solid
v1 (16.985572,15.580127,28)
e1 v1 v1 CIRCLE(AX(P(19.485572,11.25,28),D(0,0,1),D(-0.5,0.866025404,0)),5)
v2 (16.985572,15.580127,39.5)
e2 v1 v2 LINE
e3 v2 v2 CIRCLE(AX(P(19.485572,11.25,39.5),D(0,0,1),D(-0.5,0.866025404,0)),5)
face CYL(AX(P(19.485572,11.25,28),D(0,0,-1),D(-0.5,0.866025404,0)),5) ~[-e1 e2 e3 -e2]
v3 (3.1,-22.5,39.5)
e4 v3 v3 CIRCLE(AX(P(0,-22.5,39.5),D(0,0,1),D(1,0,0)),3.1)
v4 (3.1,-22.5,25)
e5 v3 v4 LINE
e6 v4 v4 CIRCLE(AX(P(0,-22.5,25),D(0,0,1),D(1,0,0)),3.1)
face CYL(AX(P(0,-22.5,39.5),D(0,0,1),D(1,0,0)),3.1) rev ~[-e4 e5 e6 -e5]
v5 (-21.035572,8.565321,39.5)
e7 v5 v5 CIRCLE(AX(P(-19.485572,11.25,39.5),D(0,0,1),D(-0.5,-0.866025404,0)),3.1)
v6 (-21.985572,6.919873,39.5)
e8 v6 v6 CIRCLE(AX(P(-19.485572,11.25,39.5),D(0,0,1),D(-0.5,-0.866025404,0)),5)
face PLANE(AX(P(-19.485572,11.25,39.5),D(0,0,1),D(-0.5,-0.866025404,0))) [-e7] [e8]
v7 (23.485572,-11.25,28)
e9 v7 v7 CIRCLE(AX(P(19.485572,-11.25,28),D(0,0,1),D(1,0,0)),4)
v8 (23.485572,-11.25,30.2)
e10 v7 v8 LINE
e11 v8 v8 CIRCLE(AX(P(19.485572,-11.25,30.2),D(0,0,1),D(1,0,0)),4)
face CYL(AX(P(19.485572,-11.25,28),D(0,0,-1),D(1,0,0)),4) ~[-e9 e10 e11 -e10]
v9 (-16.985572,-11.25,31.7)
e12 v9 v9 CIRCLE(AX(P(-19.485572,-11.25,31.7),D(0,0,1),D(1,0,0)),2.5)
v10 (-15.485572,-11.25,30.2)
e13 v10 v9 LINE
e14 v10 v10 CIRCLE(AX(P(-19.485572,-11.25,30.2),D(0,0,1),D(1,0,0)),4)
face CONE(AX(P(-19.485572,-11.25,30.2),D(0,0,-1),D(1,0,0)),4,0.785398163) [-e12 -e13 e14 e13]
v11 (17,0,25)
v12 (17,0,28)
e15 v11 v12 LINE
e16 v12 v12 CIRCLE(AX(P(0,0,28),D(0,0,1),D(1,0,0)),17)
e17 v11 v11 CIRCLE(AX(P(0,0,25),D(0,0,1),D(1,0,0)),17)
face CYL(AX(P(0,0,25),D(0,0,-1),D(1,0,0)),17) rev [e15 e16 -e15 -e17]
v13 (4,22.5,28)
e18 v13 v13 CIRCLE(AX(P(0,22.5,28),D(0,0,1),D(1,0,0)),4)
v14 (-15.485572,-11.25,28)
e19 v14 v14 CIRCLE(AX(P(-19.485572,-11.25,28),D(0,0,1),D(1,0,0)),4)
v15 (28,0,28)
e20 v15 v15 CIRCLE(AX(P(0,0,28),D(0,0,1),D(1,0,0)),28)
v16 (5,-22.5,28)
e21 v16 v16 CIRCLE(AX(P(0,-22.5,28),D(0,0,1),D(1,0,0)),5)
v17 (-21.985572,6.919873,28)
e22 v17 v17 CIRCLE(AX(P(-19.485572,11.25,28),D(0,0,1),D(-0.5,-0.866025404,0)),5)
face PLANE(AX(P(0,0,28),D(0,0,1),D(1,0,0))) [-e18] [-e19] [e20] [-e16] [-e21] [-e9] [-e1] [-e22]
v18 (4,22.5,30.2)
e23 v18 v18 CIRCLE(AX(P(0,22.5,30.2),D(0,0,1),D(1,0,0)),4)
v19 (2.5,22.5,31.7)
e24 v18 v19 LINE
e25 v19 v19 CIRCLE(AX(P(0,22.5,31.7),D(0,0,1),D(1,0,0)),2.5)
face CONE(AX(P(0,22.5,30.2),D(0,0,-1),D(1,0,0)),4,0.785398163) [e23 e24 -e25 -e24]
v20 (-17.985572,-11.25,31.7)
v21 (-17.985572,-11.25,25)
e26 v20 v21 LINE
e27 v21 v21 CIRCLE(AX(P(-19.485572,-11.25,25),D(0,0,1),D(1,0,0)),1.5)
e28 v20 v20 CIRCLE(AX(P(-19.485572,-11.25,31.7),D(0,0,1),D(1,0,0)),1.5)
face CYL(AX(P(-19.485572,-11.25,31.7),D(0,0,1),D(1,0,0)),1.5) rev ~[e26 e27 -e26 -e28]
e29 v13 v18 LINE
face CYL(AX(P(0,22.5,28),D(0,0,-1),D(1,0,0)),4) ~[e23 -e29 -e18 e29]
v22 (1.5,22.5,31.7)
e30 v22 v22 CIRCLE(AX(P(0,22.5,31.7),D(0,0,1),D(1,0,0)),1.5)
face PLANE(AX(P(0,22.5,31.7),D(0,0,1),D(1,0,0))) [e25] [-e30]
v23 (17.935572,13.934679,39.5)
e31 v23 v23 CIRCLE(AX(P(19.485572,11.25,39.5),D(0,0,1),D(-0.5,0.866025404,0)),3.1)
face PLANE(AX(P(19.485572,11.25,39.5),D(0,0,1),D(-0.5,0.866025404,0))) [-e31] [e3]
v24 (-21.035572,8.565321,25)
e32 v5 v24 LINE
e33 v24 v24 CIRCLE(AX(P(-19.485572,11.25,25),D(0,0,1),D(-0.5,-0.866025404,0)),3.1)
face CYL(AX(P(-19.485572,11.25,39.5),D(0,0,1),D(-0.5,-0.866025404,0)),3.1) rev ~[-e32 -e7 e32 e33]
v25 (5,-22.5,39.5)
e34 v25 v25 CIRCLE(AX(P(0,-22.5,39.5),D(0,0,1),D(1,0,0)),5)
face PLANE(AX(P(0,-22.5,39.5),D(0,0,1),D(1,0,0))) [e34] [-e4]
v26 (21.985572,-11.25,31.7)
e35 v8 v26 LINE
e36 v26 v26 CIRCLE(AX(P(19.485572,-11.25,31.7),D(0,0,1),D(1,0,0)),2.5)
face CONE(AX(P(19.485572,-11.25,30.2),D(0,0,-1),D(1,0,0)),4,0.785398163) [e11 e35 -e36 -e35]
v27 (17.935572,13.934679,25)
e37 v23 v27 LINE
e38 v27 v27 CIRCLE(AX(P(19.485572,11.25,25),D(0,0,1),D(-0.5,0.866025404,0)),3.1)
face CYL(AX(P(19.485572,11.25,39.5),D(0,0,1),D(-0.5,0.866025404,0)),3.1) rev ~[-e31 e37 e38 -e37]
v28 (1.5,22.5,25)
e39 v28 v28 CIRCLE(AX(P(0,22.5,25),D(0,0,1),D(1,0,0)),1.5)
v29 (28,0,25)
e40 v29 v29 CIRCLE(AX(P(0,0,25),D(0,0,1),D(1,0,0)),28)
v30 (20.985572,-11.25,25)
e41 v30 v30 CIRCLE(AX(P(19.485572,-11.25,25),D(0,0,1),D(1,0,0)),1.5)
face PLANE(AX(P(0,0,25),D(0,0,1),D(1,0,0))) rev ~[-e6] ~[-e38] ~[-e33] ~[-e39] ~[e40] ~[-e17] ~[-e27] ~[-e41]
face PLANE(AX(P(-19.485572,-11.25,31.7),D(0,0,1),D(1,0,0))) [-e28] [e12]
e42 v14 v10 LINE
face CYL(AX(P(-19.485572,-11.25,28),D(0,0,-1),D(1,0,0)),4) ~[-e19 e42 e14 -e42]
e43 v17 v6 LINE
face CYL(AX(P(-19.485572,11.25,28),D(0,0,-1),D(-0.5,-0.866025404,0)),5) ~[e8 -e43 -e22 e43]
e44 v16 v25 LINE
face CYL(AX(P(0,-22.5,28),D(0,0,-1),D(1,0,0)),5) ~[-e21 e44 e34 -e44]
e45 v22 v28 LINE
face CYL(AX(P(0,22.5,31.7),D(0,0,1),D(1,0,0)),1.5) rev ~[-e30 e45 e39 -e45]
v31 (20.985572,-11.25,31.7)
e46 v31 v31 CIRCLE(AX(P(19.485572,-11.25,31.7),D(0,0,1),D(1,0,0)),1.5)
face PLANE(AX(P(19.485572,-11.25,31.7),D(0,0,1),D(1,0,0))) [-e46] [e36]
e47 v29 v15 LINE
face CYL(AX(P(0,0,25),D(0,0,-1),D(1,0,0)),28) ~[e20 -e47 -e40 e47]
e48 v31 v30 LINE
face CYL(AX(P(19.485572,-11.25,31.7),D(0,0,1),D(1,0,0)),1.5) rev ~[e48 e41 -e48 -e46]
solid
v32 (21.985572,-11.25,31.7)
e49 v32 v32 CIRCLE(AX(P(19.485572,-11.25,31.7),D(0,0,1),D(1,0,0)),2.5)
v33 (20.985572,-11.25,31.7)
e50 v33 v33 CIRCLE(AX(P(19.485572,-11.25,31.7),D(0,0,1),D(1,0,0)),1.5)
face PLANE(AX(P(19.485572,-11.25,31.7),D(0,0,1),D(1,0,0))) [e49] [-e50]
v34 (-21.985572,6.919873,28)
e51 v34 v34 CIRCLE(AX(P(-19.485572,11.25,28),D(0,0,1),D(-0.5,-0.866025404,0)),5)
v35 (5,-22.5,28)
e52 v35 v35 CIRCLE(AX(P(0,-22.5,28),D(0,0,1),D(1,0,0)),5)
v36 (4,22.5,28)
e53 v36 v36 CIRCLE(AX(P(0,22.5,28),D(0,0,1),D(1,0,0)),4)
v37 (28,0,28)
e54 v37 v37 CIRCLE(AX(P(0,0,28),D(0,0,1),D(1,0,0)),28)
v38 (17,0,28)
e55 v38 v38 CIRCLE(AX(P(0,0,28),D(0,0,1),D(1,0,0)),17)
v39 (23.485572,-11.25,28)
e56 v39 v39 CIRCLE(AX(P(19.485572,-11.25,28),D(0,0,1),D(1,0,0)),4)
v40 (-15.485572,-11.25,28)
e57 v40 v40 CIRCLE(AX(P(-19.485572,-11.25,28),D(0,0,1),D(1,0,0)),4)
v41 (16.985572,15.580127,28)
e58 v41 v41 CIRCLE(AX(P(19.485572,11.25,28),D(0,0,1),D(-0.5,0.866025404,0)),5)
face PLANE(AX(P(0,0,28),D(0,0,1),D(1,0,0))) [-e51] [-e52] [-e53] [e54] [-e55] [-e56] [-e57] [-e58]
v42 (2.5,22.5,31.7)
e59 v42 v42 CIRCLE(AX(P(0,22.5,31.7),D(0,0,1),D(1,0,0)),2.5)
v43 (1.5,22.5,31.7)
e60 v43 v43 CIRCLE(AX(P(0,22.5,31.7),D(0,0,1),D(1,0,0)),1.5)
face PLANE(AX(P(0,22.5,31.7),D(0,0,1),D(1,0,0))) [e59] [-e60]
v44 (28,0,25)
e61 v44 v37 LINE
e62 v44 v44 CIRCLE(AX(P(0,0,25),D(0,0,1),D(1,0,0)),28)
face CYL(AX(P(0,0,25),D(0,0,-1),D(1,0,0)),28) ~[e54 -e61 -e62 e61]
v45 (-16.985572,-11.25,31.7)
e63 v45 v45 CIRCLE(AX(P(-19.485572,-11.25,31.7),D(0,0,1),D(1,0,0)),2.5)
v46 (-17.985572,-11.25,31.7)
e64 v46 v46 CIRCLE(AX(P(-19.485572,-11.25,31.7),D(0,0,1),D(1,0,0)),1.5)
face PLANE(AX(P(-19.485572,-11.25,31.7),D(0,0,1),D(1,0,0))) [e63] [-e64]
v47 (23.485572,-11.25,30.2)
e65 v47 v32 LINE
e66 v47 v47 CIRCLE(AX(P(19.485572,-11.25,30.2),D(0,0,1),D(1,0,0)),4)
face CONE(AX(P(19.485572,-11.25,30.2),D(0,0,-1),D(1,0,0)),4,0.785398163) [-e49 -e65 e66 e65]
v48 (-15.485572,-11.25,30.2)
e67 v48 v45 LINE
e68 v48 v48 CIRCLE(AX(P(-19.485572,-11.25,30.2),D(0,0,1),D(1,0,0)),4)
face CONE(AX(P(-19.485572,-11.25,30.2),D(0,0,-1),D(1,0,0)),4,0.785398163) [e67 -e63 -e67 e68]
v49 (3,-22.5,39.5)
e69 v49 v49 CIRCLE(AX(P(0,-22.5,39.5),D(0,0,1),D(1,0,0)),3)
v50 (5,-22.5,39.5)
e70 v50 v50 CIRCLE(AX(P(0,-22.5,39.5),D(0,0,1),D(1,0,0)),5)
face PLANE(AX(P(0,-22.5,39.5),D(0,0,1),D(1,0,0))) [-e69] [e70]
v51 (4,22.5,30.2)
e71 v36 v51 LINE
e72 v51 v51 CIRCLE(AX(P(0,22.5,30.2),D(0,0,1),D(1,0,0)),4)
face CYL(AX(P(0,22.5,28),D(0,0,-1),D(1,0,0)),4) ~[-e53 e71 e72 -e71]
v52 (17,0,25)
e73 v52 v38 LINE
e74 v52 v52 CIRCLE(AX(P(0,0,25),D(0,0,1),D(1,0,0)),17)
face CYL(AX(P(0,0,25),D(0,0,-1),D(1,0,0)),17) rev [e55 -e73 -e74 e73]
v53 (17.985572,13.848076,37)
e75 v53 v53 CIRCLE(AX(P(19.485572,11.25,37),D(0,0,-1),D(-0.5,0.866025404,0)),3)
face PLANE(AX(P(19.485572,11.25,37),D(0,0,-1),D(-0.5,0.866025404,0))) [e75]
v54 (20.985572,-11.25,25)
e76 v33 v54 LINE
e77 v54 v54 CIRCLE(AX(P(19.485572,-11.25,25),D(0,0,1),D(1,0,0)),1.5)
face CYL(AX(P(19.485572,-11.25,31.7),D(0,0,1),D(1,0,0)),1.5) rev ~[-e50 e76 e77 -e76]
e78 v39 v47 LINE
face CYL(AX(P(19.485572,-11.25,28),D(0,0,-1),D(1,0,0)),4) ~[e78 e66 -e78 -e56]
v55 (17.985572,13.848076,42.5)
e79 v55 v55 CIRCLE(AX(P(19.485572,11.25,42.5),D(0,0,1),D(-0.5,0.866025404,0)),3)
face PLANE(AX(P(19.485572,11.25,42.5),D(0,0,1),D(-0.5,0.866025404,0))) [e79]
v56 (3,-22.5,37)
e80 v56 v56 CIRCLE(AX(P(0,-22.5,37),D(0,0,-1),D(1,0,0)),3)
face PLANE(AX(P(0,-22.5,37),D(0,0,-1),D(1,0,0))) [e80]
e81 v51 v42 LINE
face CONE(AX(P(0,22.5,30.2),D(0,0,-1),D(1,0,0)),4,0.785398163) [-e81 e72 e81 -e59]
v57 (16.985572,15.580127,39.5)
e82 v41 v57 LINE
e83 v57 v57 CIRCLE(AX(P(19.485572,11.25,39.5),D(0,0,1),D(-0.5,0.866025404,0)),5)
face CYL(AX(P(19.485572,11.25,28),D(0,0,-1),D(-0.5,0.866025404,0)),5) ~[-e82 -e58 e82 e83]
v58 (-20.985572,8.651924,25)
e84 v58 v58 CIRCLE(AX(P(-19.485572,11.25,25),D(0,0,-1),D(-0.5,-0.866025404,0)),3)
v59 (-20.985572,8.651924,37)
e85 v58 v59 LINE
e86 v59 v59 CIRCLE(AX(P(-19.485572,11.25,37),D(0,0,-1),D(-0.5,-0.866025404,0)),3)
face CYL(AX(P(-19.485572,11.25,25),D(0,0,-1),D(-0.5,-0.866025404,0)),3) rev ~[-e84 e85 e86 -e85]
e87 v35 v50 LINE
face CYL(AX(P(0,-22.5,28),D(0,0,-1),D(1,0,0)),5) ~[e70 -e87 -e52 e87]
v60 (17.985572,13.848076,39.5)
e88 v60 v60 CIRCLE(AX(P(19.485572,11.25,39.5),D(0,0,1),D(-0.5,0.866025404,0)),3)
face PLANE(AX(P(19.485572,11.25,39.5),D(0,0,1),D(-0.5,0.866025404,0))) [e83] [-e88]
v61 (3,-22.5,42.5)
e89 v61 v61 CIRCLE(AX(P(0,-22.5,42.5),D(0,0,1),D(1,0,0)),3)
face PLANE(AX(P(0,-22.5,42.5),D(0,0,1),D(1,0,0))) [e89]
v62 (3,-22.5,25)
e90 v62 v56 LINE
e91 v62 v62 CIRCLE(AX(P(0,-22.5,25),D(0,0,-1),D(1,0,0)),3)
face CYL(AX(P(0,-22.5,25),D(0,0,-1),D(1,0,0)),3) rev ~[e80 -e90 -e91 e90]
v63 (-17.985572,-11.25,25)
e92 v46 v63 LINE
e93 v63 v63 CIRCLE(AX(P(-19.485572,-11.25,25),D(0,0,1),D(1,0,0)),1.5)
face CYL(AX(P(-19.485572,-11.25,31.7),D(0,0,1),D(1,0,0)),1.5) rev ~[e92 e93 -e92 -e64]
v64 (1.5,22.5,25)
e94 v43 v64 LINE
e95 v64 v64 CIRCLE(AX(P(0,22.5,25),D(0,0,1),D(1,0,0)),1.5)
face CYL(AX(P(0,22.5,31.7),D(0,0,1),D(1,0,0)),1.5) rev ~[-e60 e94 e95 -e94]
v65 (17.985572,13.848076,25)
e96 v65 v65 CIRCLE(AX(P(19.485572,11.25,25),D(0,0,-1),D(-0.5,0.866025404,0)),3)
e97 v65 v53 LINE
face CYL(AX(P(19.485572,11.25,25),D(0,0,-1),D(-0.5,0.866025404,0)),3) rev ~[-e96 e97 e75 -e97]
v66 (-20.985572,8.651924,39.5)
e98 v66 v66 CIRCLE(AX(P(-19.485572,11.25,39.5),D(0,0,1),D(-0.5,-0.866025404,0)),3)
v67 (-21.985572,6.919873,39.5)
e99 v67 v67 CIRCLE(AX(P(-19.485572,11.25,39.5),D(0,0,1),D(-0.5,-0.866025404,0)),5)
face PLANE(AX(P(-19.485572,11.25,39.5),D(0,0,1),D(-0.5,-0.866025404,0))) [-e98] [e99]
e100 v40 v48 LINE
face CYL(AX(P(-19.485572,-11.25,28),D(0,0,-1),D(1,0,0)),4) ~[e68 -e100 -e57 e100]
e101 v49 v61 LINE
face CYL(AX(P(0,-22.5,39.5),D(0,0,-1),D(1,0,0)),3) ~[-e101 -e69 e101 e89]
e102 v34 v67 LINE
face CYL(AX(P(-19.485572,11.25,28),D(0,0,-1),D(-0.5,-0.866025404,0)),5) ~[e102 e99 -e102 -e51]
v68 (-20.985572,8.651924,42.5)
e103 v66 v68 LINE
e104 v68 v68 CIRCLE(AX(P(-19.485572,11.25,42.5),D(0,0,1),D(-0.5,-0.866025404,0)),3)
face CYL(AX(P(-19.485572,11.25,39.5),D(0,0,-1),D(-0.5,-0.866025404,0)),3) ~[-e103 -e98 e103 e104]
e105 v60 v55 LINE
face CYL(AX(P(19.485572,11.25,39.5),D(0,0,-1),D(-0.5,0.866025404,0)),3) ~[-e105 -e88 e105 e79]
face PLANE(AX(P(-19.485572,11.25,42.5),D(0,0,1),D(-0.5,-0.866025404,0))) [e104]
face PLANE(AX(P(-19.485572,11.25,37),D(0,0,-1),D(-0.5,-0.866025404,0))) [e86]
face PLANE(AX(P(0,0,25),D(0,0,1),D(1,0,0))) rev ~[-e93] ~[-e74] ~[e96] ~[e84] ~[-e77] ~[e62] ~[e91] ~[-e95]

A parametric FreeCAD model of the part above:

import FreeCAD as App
import Part
import Sketcher


def edges_at(feature, points):
    """Names of the edges that pass closest to the given points."""
    edges = feature.Shape.Edges
    near = lambda p: min(range(len(edges)), key=lambda i: edges[i].distToShape(Part.Vertex(*p))[0])
    return sorted({f"Edge{near(p) + 1}" for p in points})

doc = App.newDocument("Part")
body = doc.addObject("PartDesign::Body", "Body")

sketch1 = body.newObject("Sketcher::SketchObject", "Sketch")
sketch1.AttachmentSupport = (doc.getObject("XY_Plane"), [""])
sketch1.MapMode = "FlatFace"
sketch1.AttachmentOffset = App.Placement(App.Vector(0, 0, 25), App.Rotation())
sketch1.addGeometry(Part.Circle(App.Vector(0, 0, 0), App.Vector(0, 0, 1), 28), False)
sketch1.addGeometry(Part.Circle(App.Vector(0, 0, 0), App.Vector(0, 0, 1), 17), False)
sketch1.addConstraint(Sketcher.Constraint("Coincident", 0, 3, -1, 1))
sketch1.addConstraint(Sketcher.Constraint("Coincident", 1, 3, -1, 1))
sketch1.addConstraint(Sketcher.Constraint("Diameter", 0, 56.0))
sketch1.addConstraint(Sketcher.Constraint("Diameter", 1, 34.0))
pad1 = body.newObject("PartDesign::Pad", "Pad")
pad1.Profile = sketch1
pad1.Length = 3

sketch2 = body.newObject("Sketcher::SketchObject", "Sketch001")
sketch2.AttachmentSupport = (doc.getObject("XY_Plane"), [""])
sketch2.MapMode = "FlatFace"
sketch2.AttachmentOffset = App.Placement(App.Vector(0, 0, 28), App.Rotation())
sketch2.addGeometry(Part.Circle(App.Vector(0, 22.5, 0), App.Vector(0, 0, 1), 4), False)
sketch2.addGeometry(Part.Circle(App.Vector(-19.5, -11.2, 0), App.Vector(0, 0, 1), 4), False)
sketch2.addGeometry(Part.Circle(App.Vector(19.5, -11.2, 0), App.Vector(0, 0, 1), 4), False)
sketch2.addConstraint(Sketcher.Constraint("Equal", 0, 1))
sketch2.addConstraint(Sketcher.Constraint("Equal", 1, 2))
sketch2.addConstraint(Sketcher.Constraint("Symmetric", 1, 3, 2, 3, -2))
sketch2.addConstraint(Sketcher.Constraint("PointOnObject", 0, 3, -2))
sketch2.addConstraint(Sketcher.Constraint("Diameter", 0, 8.0))
sketch2.addConstraint(Sketcher.Constraint("DistanceY", -1, 1, 0, 3, 22.5))
sketch2.addConstraint(Sketcher.Constraint("DistanceY", 1, 3, -1, 1, 11.25))
sketch2.addConstraint(Sketcher.Constraint("DistanceX", 1, 3, -1, 1, 19.485572))
pad2 = body.newObject("PartDesign::Pad", "Pad001")
pad2.Profile = sketch2
pad2.Length = 3.7

sketch3 = body.newObject("Sketcher::SketchObject", "Sketch002")
sketch3.AttachmentSupport = (doc.getObject("XY_Plane"), [""])
sketch3.MapMode = "FlatFace"
sketch3.AttachmentOffset = App.Placement(App.Vector(0, 0, 31.7), App.Rotation())
sketch3.addGeometry(Part.Circle(App.Vector(0, 22.5, 0), App.Vector(0, 0, 1), 1.5), False)
sketch3.addGeometry(Part.Circle(App.Vector(-19.5, -11.2, 0), App.Vector(0, 0, 1), 1.5), False)
sketch3.addGeometry(Part.Circle(App.Vector(19.5, -11.2, 0), App.Vector(0, 0, 1), 1.5), False)
sketch3.addConstraint(Sketcher.Constraint("Equal", 0, 1))
sketch3.addConstraint(Sketcher.Constraint("Equal", 1, 2))
sketch3.addConstraint(Sketcher.Constraint("Symmetric", 1, 3, 2, 3, -2))
sketch3.addConstraint(Sketcher.Constraint("PointOnObject", 0, 3, -2))
sketch3.addConstraint(Sketcher.Constraint("Diameter", 0, 3.0))
sketch3.addConstraint(Sketcher.Constraint("DistanceY", -1, 1, 0, 3, 22.5))
sketch3.addConstraint(Sketcher.Constraint("DistanceY", 1, 3, -1, 1, 11.25))
sketch3.addConstraint(Sketcher.Constraint("DistanceX", 1, 3, -1, 1, 19.485572))
pocket1 = body.newObject("PartDesign::Pocket", "Pocket")
pocket1.Profile = sketch3
pocket1.Type = "ThroughAll"

sketch4 = body.newObject("Sketcher::SketchObject", "Sketch003")
sketch4.AttachmentSupport = (doc.getObject("XY_Plane"), [""])
sketch4.MapMode = "FlatFace"
sketch4.AttachmentOffset = App.Placement(App.Vector(0, 0, 28), App.Rotation())
sketch4.addGeometry(Part.Circle(App.Vector(0, -22, 0), App.Vector(0, 0, 1), 5), False)
sketch4.addConstraint(Sketcher.Constraint("PointOnObject", 0, 3, -2))
sketch4.addConstraint(Sketcher.Constraint("Diameter", 0, 10.0))
sketch4.addConstraint(Sketcher.Constraint("DistanceY", 0, 3, -1, 1, 22.5))
pad3 = body.newObject("PartDesign::Pad", "Pad002")
pad3.Profile = sketch4
pad3.Length = 11.5
doc.recompute()

polarpattern = body.newObject("PartDesign::PolarPattern", "PolarPattern")
polarpattern.Originals = [pad3]
polarpattern.Axis = (doc.getObject("Z_Axis"), [""])
polarpattern.Angle = 360
polarpattern.Occurrences = 3
body.Tip = polarpattern
doc.recompute()

chamfer = body.newObject("PartDesign::Chamfer", "Chamfer")
chamfer.Base = (polarpattern, edges_at(polarpattern, [(-23.486, -11.25, 31.7)]))
chamfer.Size = 1.5
doc.recompute()

chamfer2 = body.newObject("PartDesign::Chamfer", "Chamfer001")
chamfer2.Base = (chamfer, edges_at(chamfer, [(15.486, -11.25, 31.7)]))
chamfer2.Size = 1.5
doc.recompute()

chamfer3 = body.newObject("PartDesign::Chamfer", "Chamfer002")
chamfer3.Base = (chamfer2, edges_at(chamfer2, [(-4, 22.5, 31.7)]))
chamfer3.Size = 1.5
body2 = doc.addObject("PartDesign::Body", "Body001")
doc.recompute()

body2.BaseFeature = body
doc.recompute()

sketch5 = body2.newObject("Sketcher::SketchObject", "Sketch004")
sketch5.AttachmentSupport = (doc.getObject("XY_Plane001"), [""])
sketch5.MapMode = "FlatFace"
sketch5.AttachmentOffset = App.Placement(App.Vector(0, 0, 39.5), App.Rotation())
sketch5.addGeometry(Part.Circle(App.Vector(0, -22.5, 0), App.Vector(0, 0, 1), 3.1), False)
sketch5.addConstraint(Sketcher.Constraint("PointOnObject", 0, 3, -2))
sketch5.addConstraint(Sketcher.Constraint("Diameter", 0, 6.2))
sketch5.addConstraint(Sketcher.Constraint("DistanceY", 0, 3, -1, 1, 22.5))
pocket2 = body2.newObject("PartDesign::Pocket", "Pocket001")
pocket2.Profile = sketch5
pocket2.Type = "ThroughAll"
doc.recompute()

polarpattern2 = body2.newObject("PartDesign::PolarPattern", "PolarPattern001")
polarpattern2.Originals = [pocket2]
polarpattern2.Axis = (doc.getObject("Z_Axis001"), [""])
polarpattern2.Angle = 360
polarpattern2.Occurrences = 3
body2.Tip = polarpattern2

sketch6 = body.newObject("Sketcher::SketchObject", "Sketch005")
sketch6.AttachmentSupport = (doc.getObject("XY_Plane"), [""])
sketch6.MapMode = "FlatFace"
sketch6.AttachmentOffset = App.Placement(App.Vector(0, 0, 39.5), App.Rotation())
sketch6.addGeometry(Part.Circle(App.Vector(0, -22.5, 0), App.Vector(0, 0, 1), 3), False)
sketch6.addConstraint(Sketcher.Constraint("PointOnObject", 0, 3, -2))
sketch6.addConstraint(Sketcher.Constraint("Diameter", 0, 6.0))
sketch6.addConstraint(Sketcher.Constraint("DistanceY", 0, 3, -1, 1, 22.5))
pad4 = body.newObject("PartDesign::Pad", "Pad003")
pad4.Profile = sketch6
pad4.Length = 3
doc.recompute()

polarpattern3 = body.newObject("PartDesign::PolarPattern", "PolarPattern002")
polarpattern3.Originals = [pad4]
polarpattern3.Axis = (doc.getObject("Z_Axis"), [""])
polarpattern3.Angle = 360
polarpattern3.Occurrences = 3
body.Tip = polarpattern3

sketch7 = body.newObject("Sketcher::SketchObject", "Sketch006")
sketch7.AttachmentSupport = (doc.getObject("XY_Plane"), [""])
sketch7.MapMode = "FlatFace"
sketch7.AttachmentOffset = App.Placement(App.Vector(0, 0, 25), App.Rotation())
sketch7.addGeometry(Part.Circle(App.Vector(0, -22.5, 0), App.Vector(0, 0, 1), 3), False)
sketch7.addConstraint(Sketcher.Constraint("PointOnObject", 0, 3, -2))
sketch7.addConstraint(Sketcher.Constraint("Diameter", 0, 6.0))
sketch7.addConstraint(Sketcher.Constraint("DistanceY", 0, 3, -1, 1, 22.5))
pocket3 = body.newObject("PartDesign::Pocket", "Pocket002")
pocket3.Profile = sketch7
pocket3.Length = 12
pocket3.Reversed = True
doc.recompute()

polarpattern4 = body.newObject("PartDesign::PolarPattern", "PolarPattern003")
polarpattern4.Originals = [pocket3]
polarpattern4.Axis = (doc.getObject("Z_Axis"), [""])
polarpattern4.Angle = 360
polarpattern4.Occurrences = 3
body.Tip = polarpattern4

doc.recompute()
